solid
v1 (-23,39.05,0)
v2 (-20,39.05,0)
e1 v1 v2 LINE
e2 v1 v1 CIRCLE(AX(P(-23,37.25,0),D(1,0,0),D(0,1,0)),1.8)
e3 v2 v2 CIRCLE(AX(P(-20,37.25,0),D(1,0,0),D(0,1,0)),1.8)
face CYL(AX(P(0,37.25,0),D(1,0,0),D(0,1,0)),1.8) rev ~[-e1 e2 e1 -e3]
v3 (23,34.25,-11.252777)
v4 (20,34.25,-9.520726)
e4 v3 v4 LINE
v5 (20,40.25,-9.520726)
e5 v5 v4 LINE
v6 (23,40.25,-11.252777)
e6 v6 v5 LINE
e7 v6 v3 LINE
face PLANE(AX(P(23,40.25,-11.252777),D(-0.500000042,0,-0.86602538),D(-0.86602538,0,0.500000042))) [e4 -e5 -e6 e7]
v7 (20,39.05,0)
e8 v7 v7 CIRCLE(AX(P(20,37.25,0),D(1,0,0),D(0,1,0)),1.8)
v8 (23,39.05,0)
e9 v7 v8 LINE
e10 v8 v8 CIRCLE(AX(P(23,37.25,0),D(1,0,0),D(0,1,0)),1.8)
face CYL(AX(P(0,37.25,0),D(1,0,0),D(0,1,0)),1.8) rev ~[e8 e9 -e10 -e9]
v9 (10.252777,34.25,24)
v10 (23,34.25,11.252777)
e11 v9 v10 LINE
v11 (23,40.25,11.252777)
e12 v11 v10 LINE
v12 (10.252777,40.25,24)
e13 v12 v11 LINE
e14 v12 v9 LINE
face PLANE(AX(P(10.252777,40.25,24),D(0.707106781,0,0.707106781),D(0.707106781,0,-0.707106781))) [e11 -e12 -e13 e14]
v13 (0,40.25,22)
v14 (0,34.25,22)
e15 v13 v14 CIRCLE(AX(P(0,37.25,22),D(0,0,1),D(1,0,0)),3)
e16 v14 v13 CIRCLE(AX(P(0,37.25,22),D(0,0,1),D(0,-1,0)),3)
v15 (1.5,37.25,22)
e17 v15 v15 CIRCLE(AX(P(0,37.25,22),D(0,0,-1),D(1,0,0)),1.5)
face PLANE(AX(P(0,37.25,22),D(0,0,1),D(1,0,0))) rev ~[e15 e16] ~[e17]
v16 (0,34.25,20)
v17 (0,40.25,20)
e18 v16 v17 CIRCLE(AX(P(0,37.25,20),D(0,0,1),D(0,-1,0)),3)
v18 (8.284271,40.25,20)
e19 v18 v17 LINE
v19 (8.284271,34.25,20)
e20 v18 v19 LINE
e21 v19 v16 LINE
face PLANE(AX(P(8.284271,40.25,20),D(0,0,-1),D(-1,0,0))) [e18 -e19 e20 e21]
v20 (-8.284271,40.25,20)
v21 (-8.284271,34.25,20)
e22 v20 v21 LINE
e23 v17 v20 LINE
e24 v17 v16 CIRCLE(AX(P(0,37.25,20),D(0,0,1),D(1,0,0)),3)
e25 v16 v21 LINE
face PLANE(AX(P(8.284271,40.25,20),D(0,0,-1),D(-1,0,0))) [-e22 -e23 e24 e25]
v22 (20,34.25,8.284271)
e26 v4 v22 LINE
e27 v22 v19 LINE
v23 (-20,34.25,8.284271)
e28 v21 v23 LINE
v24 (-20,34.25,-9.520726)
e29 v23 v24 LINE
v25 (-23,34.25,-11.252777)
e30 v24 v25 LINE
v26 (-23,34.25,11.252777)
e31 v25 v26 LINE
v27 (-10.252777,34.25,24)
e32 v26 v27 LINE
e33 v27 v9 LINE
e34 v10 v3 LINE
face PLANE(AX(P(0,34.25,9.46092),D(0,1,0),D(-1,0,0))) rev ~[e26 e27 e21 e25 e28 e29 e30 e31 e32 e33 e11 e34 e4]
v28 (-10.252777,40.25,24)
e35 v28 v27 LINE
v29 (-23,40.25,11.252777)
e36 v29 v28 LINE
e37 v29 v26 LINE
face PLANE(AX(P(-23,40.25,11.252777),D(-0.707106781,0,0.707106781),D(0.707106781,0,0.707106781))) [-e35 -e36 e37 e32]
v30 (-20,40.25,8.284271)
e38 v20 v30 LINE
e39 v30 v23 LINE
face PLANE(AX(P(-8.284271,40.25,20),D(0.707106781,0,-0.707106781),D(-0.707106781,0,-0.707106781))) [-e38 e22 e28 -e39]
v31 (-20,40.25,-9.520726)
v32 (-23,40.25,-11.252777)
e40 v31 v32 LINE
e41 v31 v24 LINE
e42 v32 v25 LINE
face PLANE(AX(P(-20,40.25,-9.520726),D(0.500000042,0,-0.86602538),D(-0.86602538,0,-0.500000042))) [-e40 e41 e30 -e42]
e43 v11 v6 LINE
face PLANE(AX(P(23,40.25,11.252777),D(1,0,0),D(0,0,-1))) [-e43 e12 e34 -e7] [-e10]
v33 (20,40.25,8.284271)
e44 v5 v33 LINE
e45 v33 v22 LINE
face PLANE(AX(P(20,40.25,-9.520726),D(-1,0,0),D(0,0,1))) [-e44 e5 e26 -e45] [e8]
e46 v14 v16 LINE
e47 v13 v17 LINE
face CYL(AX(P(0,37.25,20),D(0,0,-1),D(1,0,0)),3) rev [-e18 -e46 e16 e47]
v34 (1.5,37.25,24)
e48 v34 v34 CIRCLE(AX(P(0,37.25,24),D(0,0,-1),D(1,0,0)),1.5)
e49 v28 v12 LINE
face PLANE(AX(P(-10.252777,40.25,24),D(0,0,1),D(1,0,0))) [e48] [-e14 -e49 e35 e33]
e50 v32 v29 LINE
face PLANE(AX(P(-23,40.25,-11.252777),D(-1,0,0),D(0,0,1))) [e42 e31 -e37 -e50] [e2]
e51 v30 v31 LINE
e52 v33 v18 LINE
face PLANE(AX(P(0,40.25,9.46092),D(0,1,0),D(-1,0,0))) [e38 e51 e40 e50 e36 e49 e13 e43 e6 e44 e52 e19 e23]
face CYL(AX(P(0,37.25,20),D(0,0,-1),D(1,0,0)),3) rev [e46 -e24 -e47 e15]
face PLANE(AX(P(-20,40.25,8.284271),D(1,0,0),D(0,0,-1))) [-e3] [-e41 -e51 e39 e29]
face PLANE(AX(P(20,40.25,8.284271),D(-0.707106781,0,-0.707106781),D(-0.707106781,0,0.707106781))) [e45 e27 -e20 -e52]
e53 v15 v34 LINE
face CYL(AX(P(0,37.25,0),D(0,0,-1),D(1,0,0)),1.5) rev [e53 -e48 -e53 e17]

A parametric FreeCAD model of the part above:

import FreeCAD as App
import Part
import Sketcher
from FreeCAD import Vector
Q = App.Units.Quantity

doc = App.newDocument("Part")
params = doc.addObject("Spreadsheet::Sheet", "Params")
for row, (alias, value) in enumerate([
    ("sketch1_diameter", "3.6 mm"),
    ("pad1_length", "100 mm"),
    ("sketch2_diameter", "6 mm"),
    ("pad2_length", "2 mm"),
    ("sketch3_diameter", "3 mm"),
    ("pad3_length", "50 mm"),
    ("pad4_length", "6 mm"),
], start=1):
    params.set(f"A{row}", alias)
    params.set(f"B{row}", "=" + value)
    params.setAlias(f"B{row}", alias)

body = doc.addObject("PartDesign::Body", "Body")

sketch1 = body.newObject("Sketcher::SketchObject", "Sketch")
sketch1.AttachmentSupport = (doc.getObject("YZ_Plane"), [""])
sketch1.MapMode = "FlatFace"
sketch1.addGeometry(Part.Circle(Vector(37.2, 0, 0), Vector(0, 0, 1), 1.8), False)
sketch1.addConstraint(Sketcher.Constraint("PointOnObject", 0, 3, -1))
sketch1.addConstraint(Sketcher.Constraint("Diameter", 0, Q("3.6 mm")))
sketch1.addConstraint(Sketcher.Constraint("DistanceX", -1, 1, 0, 3, Q("37.25 mm")))
sketch1.setExpression("Constraints[1]", "Params.sketch1_diameter")
pad1 = body.newObject("PartDesign::Pad", "Pad")
pad1.Profile = sketch1
pad1.setExpression("Length", "Params.pad1_length")
pad1.Midplane = True
body2 = doc.addObject("PartDesign::Body", "Body001")

sketch2 = body2.newObject("Sketcher::SketchObject", "Sketch001")
sketch2.AttachmentSupport = (doc.getObject("XY_Plane001"), [""])
sketch2.MapMode = "FlatFace"
sketch2.AttachmentOffset = App.Placement(Vector(0, 0, 20), App.Rotation())
sketch2.addGeometry(Part.Circle(Vector(0, 37, 0), Vector(0, 0, 1), 3), False)
sketch2.addConstraint(Sketcher.Constraint("PointOnObject", 0, 3, -2))
sketch2.addConstraint(Sketcher.Constraint("Diameter", 0, Q("6 mm")))
sketch2.addConstraint(Sketcher.Constraint("DistanceY", -1, 1, 0, 3, Q("37 mm")))
sketch2.setExpression("Constraints[1]", "Params.sketch2_diameter")
pad2 = body2.newObject("PartDesign::Pad", "Pad001")
pad2.Profile = sketch2
pad2.setExpression("Length", "Params.pad2_length")
body3 = doc.addObject("PartDesign::Body", "Body002")

sketch3 = body3.newObject("Sketcher::SketchObject", "Sketch002")
sketch3.AttachmentSupport = (doc.getObject("XY_Plane002"), [""])
sketch3.MapMode = "FlatFace"
sketch3.addGeometry(Part.Circle(Vector(0, 37, 0), Vector(0, 0, 1), 1.5), False)
sketch3.addConstraint(Sketcher.Constraint("PointOnObject", 0, 3, -2))
sketch3.addConstraint(Sketcher.Constraint("Diameter", 0, Q("3 mm")))
sketch3.addConstraint(Sketcher.Constraint("DistanceY", -1, 1, 0, 3, Q("37 mm")))
sketch3.setExpression("Constraints[1]", "Params.sketch3_diameter")
pad3 = body3.newObject("PartDesign::Pad", "Pad002")
pad3.Profile = sketch3
pad3.setExpression("Length", "Params.pad3_length")
doc.recompute()

boolean = body3.newObject("PartDesign::Boolean", "Boolean")
boolean.Type = "Fuse"
boolean.addObjects([body2])
body4 = doc.addObject("PartDesign::Body", "Body003")

sketch4 = body4.newObject("Sketcher::SketchObject", "Sketch003")
sketch4.AttachmentSupport = (doc.getObject("XZ_Plane003"), [""])
sketch4.MapMode = "FlatFace"
sketch4.AttachmentOffset = App.Placement(Vector(0, 0, -40), App.Rotation())
sketch4.addGeometry(Part.LineSegment(Vector(-23, 11.3, 0), Vector(-23, -11.3, 0)), False)
sketch4.addGeometry(Part.LineSegment(Vector(-23, -11.3, 0), Vector(-20, -9.5, 0)), False)
sketch4.addGeometry(Part.LineSegment(Vector(-20, -9.5, 0), Vector(-20, 8.3, 0)), False)
sketch4.addGeometry(Part.LineSegment(Vector(-20, 8.3, 0), Vector(-8.3, 20, 0)), False)
sketch4.addGeometry(Part.LineSegment(Vector(-8.3, 20, 0), Vector(8.3, 20, 0)), False)
sketch4.addGeometry(Part.LineSegment(Vector(8.3, 20, 0), Vector(20, 8.3, 0)), False)
sketch4.addGeometry(Part.LineSegment(Vector(20, 8.3, 0), Vector(20, -9.5, 0)), False)
sketch4.addGeometry(Part.LineSegment(Vector(20, -9.5, 0), Vector(23, -11.3, 0)), False)
sketch4.addGeometry(Part.LineSegment(Vector(23, -11.3, 0), Vector(23, 11.3, 0)), False)
sketch4.addGeometry(Part.LineSegment(Vector(23, 11.3, 0), Vector(10.3, 24, 0)), False)
sketch4.addGeometry(Part.LineSegment(Vector(10.3, 24, 0), Vector(-10.3, 24, 0)), False)
sketch4.addGeometry(Part.LineSegment(Vector(-10.3, 24, 0), Vector(-23, 11.3, 0)), False)
sketch4.addConstraint(Sketcher.Constraint("Coincident", 0, 2, 1, 1))
sketch4.addConstraint(Sketcher.Constraint("Coincident", 1, 2, 2, 1))
sketch4.addConstraint(Sketcher.Constraint("Coincident", 2, 2, 3, 1))
sketch4.addConstraint(Sketcher.Constraint("Coincident", 3, 2, 4, 1))
sketch4.addConstraint(Sketcher.Constraint("Coincident", 4, 2, 5, 1))
sketch4.addConstraint(Sketcher.Constraint("Coincident", 5, 2, 6, 1))
sketch4.addConstraint(Sketcher.Constraint("Coincident", 6, 2, 7, 1))
sketch4.addConstraint(Sketcher.Constraint("Coincident", 7, 2, 8, 1))
sketch4.addConstraint(Sketcher.Constraint("Coincident", 8, 2, 9, 1))
sketch4.addConstraint(Sketcher.Constraint("Coincident", 9, 2, 10, 1))
sketch4.addConstraint(Sketcher.Constraint("Coincident", 10, 2, 11, 1))
sketch4.addConstraint(Sketcher.Constraint("Coincident", 11, 2, 0, 1))
sketch4.addConstraint(Sketcher.Constraint("Vertical", 0))
sketch4.addConstraint(Sketcher.Constraint("Vertical", 2))
sketch4.addConstraint(Sketcher.Constraint("Horizontal", 4))
sketch4.addConstraint(Sketcher.Constraint("Vertical", 6))
sketch4.addConstraint(Sketcher.Constraint("Vertical", 8))
sketch4.addConstraint(Sketcher.Constraint("Horizontal", 10))
sketch4.addConstraint(Sketcher.Constraint("Symmetric", 0, 2, 8, 2, -1, 1))
sketch4.addConstraint(Sketcher.Constraint("Symmetric", 2, 2, 5, 2, -2))
sketch4.addConstraint(Sketcher.Constraint("Perpendicular", 3, 5))
sketch4.addConstraint(Sketcher.Constraint("Parallel", 5, 9))
sketch4.addConstraint(Sketcher.Constraint("Perpendicular", 9, 11))
sketch4.addConstraint(Sketcher.Constraint("Horizontal", 1, 2, 6, 2))
sketch4.addConstraint(Sketcher.Constraint("Horizontal", 0, 2, 7, 2))
sketch4.addConstraint(Sketcher.Constraint("Horizontal", 8, 2, 11, 2))
sketch4.addConstraint(Sketcher.Constraint("Equal", 3, 5))
sketch4.addConstraint(Sketcher.Constraint("Angle", 1, Q("30.000003 deg")))
sketch4.addConstraint(Sketcher.Constraint("DistanceX", 0, 2, -1, 1, Q("23 mm")))
sketch4.addConstraint(Sketcher.Constraint("DistanceX", 1, 2, -1, 1, Q("20 mm")))
sketch4.addConstraint(Sketcher.Constraint("DistanceY", -1, 1, 3, 2, Q("20 mm")))
sketch4.addConstraint(Sketcher.Constraint("DistanceY", -1, 1, 9, 2, Q("24 mm")))
sketch4.addConstraint(Sketcher.Constraint("DistanceX", 4, 1, 4, 2, Q("16.568542 mm")))
sketch4.addConstraint(Sketcher.Constraint("DistanceX", 10, 2, 10, 1, Q("20.505554 mm")))
pad4 = body4.newObject("PartDesign::Pad", "Pad003")
pad4.Profile = sketch4
pad4.setExpression("Length", "Params.pad4_length")
doc.recompute()

boolean2 = body4.newObject("PartDesign::Boolean", "Boolean001")
boolean2.Type = "Cut"
boolean2.addObjects([body3])
body5 = doc.addObject("PartDesign::Body", "Body004")
doc.recompute()

body4.Placement = App.Placement(Vector(0, 0.25, 0), App.Rotation(Vector(0, 0, 1), 0))
boolean3 = body5.newObject("PartDesign::Boolean", "Boolean002")
boolean3.Type = "Fuse"
boolean3.addObjects([body4])
doc.recompute()

boolean4 = body5.newObject("PartDesign::Boolean", "Boolean003")
boolean4.Type = "Cut"
boolean4.addObjects([body])

doc.recompute()
